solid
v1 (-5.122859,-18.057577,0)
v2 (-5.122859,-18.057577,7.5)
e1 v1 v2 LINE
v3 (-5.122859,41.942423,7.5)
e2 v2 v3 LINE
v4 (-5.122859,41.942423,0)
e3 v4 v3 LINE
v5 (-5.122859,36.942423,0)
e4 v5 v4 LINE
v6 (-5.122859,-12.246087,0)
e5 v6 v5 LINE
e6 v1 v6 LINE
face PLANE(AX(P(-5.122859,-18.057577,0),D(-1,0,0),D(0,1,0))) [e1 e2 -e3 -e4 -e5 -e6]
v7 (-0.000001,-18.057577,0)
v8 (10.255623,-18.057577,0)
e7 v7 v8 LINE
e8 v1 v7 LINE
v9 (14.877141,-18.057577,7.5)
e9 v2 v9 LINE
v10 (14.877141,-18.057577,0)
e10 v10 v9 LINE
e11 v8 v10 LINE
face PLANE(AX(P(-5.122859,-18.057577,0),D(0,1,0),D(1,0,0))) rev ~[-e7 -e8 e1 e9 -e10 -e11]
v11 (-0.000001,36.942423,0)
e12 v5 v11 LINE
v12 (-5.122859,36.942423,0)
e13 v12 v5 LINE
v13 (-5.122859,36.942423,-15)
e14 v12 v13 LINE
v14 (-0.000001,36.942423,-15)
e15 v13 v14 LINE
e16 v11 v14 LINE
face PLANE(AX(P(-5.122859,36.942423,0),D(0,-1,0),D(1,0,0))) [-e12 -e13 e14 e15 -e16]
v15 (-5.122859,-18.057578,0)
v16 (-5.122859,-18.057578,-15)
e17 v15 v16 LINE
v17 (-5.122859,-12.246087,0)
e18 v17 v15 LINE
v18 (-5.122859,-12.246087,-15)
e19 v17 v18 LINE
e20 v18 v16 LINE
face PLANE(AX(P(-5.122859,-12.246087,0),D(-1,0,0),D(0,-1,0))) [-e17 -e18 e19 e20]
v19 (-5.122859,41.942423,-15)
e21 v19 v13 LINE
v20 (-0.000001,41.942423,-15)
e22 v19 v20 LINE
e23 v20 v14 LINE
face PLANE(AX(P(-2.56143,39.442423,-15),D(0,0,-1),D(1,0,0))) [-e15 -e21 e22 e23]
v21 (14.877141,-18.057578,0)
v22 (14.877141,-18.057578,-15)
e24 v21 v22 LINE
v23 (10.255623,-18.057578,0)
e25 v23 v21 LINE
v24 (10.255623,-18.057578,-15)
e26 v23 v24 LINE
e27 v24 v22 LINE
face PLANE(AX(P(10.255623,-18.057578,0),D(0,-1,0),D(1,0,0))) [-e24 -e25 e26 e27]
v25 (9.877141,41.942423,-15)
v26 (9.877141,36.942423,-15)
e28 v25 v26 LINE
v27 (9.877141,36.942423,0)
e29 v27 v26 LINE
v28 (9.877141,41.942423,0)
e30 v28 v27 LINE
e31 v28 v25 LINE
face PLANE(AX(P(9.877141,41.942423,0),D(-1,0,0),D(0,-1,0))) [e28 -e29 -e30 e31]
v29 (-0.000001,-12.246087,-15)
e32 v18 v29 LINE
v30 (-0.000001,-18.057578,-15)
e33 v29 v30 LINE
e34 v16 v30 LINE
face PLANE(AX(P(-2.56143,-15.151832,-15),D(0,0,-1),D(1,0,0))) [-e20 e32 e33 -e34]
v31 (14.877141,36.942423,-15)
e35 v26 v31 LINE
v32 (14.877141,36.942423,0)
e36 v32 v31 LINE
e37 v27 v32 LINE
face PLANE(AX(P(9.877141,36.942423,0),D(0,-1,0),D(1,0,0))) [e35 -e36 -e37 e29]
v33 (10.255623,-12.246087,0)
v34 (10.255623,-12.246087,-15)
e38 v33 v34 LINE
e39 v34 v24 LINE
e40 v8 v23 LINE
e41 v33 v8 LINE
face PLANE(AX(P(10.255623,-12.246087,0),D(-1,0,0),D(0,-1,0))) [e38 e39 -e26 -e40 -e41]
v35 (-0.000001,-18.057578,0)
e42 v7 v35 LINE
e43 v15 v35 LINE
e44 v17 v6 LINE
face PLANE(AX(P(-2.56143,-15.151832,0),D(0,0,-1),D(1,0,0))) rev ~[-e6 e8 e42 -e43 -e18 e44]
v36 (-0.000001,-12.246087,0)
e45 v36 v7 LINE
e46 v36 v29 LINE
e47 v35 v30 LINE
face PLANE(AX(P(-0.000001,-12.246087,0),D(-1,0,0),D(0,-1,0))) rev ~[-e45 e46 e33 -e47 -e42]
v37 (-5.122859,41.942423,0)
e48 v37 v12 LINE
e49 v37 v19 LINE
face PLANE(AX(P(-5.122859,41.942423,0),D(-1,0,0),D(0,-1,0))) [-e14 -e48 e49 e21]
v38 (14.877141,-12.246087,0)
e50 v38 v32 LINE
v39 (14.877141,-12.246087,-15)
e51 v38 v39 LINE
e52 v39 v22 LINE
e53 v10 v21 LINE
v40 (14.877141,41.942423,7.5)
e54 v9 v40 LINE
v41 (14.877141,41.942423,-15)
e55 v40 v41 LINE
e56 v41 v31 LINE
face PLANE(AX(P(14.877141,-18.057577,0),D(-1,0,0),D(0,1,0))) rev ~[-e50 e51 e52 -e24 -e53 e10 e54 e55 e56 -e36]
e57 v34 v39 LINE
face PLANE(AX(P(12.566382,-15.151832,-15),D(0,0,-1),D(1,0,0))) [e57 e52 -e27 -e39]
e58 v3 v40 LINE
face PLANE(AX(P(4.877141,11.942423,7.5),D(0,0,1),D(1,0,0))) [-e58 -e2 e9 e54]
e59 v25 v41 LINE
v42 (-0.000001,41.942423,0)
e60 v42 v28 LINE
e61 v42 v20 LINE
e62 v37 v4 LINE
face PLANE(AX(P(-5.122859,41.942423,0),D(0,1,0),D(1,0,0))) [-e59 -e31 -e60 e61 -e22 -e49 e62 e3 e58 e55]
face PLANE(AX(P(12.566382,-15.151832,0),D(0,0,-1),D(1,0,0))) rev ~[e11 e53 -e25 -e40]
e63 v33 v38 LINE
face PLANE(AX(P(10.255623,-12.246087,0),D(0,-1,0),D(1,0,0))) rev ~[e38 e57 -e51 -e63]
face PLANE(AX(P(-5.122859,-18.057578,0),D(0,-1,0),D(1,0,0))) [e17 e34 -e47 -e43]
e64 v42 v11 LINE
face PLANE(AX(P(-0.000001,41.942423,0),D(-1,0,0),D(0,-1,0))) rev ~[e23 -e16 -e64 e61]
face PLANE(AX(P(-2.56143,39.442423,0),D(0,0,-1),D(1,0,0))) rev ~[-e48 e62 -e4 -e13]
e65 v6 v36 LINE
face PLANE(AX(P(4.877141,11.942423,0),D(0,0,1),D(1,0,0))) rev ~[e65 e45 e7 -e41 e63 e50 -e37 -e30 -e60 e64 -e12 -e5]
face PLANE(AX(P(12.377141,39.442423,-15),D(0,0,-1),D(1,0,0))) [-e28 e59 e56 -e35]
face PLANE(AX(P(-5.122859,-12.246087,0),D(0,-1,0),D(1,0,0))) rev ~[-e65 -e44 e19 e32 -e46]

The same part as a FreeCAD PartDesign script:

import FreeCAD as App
import Part
import Sketcher

V = App.Vector

doc = App.newDocument("Part")
body = doc.addObject("PartDesign::Body", "Body")

# Sketch on XY plane
sketch1 = doc.addObject("Sketcher::SketchObject", "Sketch")
body.addObject(sketch1)
sketch1.AttachmentSupport = (doc.XY_Plane, [""])
sketch1.MapMode = "FlatFace"
sketch1.addGeometry([
    Part.LineSegment(V(-5, 42, 0), V(-5, -18, 0)),
    Part.LineSegment(V(-5, -18, 0), V(15, -18, 0)),
    Part.LineSegment(V(15, -18, 0), V(15, 42, 0)),
    Part.LineSegment(V(15, 42, 0), V(-5, 42, 0)),
], False)
sketch1.addConstraint([
    Sketcher.Constraint("Coincident", 0, 2, 1, 1),
    Sketcher.Constraint("Coincident", 1, 2, 2, 1),
    Sketcher.Constraint("Coincident", 2, 2, 3, 1),
    Sketcher.Constraint("Coincident", 3, 2, 0, 1),
    Sketcher.Constraint("Vertical", 0),
    Sketcher.Constraint("Horizontal", 1),
    Sketcher.Constraint("Vertical", 2),
    Sketcher.Constraint("Horizontal", 3),
    Sketcher.Constraint("DistanceX", 1, 1, 1, 2, 20.0),
    Sketcher.Constraint("DistanceY", 0, 2, 0, 1, 60.0),
    Sketcher.Constraint("DistanceX", 0, 2, -1, 1, 5.122859),
    Sketcher.Constraint("DistanceY", 0, 2, -1, 1, 18.057577),
])
pad1 = doc.addObject("PartDesign::Pad", "Pad")
body.addObject(pad1)
pad1.Profile = sketch1
pad1.Length = 7.5

# Sketch on XY plane
sketch2 = doc.addObject("Sketcher::SketchObject", "Sketch001")
body.addObject(sketch2)
sketch2.AttachmentSupport = (doc.XY_Plane, [""])
sketch2.MapMode = "FlatFace"
sketch2.addGeometry([
    Part.LineSegment(V(-5.1, -18.1, 0), V(-5.1, -12.2, 0)),  # 0
    Part.LineSegment(V(-5.1, -12.2, 0), V(0, -12.2, 0)),  # 1
    Part.LineSegment(V(0, -12.2, 0), V(0, -18.1, 0)),  # 2
    Part.LineSegment(V(0, -18.1, 0), V(-5.1, -18.1, 0)),  # 3
    Part.LineSegment(V(10.3, -18.1, 0), V(10.3, -12.2, 0)),  # 4
    Part.LineSegment(V(10.3, -12.2, 0), V(14.9, -12.2, 0)),  # 5
    Part.LineSegment(V(14.9, -12.2, 0), V(14.9, -18.1, 0)),  # 6
    Part.LineSegment(V(14.9, -18.1, 0), V(10.3, -18.1, 0)),  # 7
    Part.LineSegment(V(9.9, 36.9, 0), V(9.9, 41.9, 0)),  # 8
    Part.LineSegment(V(9.9, 41.9, 0), V(14.9, 41.9, 0)),  # 9
    Part.LineSegment(V(14.9, 41.9, 0), V(14.9, 36.9, 0)),  # 10
    Part.LineSegment(V(14.9, 36.9, 0), V(9.9, 36.9, 0)),  # 11
    Part.LineSegment(V(-5.1, 36.9, 0), V(-5.1, 41.9, 0)),  # 12
    Part.LineSegment(V(-5.1, 41.9, 0), V(0, 41.9, 0)),  # 13
    Part.LineSegment(V(0, 41.9, 0), V(0, 36.9, 0)),  # 14
    Part.LineSegment(V(0, 36.9, 0), V(-5.1, 36.9, 0)),  # 15
], False)
sketch2.addConstraint([
    Sketcher.Constraint("Coincident", 0, 2, 1, 1),
    Sketcher.Constraint("Coincident", 1, 2, 2, 1),
    Sketcher.Constraint("Coincident", 2, 2, 3, 1),
    Sketcher.Constraint("Coincident", 3, 2, 0, 1),
    Sketcher.Constraint("Coincident", 4, 2, 5, 1),
    Sketcher.Constraint("Coincident", 5, 2, 6, 1),
    Sketcher.Constraint("Coincident", 6, 2, 7, 1),
    Sketcher.Constraint("Coincident", 7, 2, 4, 1),
    Sketcher.Constraint("Coincident", 8, 2, 9, 1),
    Sketcher.Constraint("Coincident", 9, 2, 10, 1),
    Sketcher.Constraint("Coincident", 10, 2, 11, 1),
    Sketcher.Constraint("Coincident", 11, 2, 8, 1),
    Sketcher.Constraint("Coincident", 12, 2, 13, 1),
    Sketcher.Constraint("Coincident", 13, 2, 14, 1),
    Sketcher.Constraint("Coincident", 14, 2, 15, 1),
    Sketcher.Constraint("Coincident", 15, 2, 12, 1),
    Sketcher.Constraint("Vertical", 0),
    Sketcher.Constraint("Horizontal", 1),
    Sketcher.Constraint("Vertical", 2),
    Sketcher.Constraint("Horizontal", 3),
    Sketcher.Constraint("Vertical", 4),
    Sketcher.Constraint("Horizontal", 5),
    Sketcher.Constraint("Vertical", 6),
    Sketcher.Constraint("Horizontal", 7),
    Sketcher.Constraint("Vertical", 8),
    Sketcher.Constraint("Horizontal", 9),
    Sketcher.Constraint("Vertical", 10),
    Sketcher.Constraint("Horizontal", 11),
    Sketcher.Constraint("Vertical", 12),
    Sketcher.Constraint("Horizontal", 13),
    Sketcher.Constraint("Vertical", 14),
    Sketcher.Constraint("Horizontal", 15),
    Sketcher.Constraint("PointOnObject", 1, 2, -2),
    Sketcher.Constraint("PointOnObject", 13, 2, -2),
    Sketcher.Constraint("Horizontal", 1, 2, 4, 2),
    Sketcher.Constraint("Horizontal", 3, 2, 6, 2),
    Sketcher.Constraint("Horizontal", 9, 2, 12, 2),
    Sketcher.Constraint("Horizontal", 11, 2, 14, 2),
    Sketcher.Constraint("Vertical", 6, 2, 9, 2),
    Sketcher.Constraint("Vertical", 3, 2, 12, 2),
    Sketcher.Constraint("Equal", 11, 8),
    Sketcher.Constraint("DistanceX", 9, 1, 9, 2, 5.0),
    Sketcher.Constraint("DistanceX", 0, 2, 5, 2, 20.0),
    Sketcher.Constraint("DistanceY", 7, 2, 8, 2, 60.0),
    Sketcher.Constraint("DistanceX", 1, 1, 1, 2, 5.122859),
    Sketcher.Constraint("DistanceY", 0, 1, 0, 2, 5.811491),
    Sketcher.Constraint("DistanceX", 5, 1, 5, 2, 4.621518),
    Sketcher.Constraint("DistanceY", 0, 2, -1, 1, 12.246087),
])
pad2 = doc.addObject("PartDesign::Pad", "Pad001")
body.addObject(pad2)
pad2.Profile = sketch2
pad2.Length = 15
pad2.Reversed = True

doc.recompute()
